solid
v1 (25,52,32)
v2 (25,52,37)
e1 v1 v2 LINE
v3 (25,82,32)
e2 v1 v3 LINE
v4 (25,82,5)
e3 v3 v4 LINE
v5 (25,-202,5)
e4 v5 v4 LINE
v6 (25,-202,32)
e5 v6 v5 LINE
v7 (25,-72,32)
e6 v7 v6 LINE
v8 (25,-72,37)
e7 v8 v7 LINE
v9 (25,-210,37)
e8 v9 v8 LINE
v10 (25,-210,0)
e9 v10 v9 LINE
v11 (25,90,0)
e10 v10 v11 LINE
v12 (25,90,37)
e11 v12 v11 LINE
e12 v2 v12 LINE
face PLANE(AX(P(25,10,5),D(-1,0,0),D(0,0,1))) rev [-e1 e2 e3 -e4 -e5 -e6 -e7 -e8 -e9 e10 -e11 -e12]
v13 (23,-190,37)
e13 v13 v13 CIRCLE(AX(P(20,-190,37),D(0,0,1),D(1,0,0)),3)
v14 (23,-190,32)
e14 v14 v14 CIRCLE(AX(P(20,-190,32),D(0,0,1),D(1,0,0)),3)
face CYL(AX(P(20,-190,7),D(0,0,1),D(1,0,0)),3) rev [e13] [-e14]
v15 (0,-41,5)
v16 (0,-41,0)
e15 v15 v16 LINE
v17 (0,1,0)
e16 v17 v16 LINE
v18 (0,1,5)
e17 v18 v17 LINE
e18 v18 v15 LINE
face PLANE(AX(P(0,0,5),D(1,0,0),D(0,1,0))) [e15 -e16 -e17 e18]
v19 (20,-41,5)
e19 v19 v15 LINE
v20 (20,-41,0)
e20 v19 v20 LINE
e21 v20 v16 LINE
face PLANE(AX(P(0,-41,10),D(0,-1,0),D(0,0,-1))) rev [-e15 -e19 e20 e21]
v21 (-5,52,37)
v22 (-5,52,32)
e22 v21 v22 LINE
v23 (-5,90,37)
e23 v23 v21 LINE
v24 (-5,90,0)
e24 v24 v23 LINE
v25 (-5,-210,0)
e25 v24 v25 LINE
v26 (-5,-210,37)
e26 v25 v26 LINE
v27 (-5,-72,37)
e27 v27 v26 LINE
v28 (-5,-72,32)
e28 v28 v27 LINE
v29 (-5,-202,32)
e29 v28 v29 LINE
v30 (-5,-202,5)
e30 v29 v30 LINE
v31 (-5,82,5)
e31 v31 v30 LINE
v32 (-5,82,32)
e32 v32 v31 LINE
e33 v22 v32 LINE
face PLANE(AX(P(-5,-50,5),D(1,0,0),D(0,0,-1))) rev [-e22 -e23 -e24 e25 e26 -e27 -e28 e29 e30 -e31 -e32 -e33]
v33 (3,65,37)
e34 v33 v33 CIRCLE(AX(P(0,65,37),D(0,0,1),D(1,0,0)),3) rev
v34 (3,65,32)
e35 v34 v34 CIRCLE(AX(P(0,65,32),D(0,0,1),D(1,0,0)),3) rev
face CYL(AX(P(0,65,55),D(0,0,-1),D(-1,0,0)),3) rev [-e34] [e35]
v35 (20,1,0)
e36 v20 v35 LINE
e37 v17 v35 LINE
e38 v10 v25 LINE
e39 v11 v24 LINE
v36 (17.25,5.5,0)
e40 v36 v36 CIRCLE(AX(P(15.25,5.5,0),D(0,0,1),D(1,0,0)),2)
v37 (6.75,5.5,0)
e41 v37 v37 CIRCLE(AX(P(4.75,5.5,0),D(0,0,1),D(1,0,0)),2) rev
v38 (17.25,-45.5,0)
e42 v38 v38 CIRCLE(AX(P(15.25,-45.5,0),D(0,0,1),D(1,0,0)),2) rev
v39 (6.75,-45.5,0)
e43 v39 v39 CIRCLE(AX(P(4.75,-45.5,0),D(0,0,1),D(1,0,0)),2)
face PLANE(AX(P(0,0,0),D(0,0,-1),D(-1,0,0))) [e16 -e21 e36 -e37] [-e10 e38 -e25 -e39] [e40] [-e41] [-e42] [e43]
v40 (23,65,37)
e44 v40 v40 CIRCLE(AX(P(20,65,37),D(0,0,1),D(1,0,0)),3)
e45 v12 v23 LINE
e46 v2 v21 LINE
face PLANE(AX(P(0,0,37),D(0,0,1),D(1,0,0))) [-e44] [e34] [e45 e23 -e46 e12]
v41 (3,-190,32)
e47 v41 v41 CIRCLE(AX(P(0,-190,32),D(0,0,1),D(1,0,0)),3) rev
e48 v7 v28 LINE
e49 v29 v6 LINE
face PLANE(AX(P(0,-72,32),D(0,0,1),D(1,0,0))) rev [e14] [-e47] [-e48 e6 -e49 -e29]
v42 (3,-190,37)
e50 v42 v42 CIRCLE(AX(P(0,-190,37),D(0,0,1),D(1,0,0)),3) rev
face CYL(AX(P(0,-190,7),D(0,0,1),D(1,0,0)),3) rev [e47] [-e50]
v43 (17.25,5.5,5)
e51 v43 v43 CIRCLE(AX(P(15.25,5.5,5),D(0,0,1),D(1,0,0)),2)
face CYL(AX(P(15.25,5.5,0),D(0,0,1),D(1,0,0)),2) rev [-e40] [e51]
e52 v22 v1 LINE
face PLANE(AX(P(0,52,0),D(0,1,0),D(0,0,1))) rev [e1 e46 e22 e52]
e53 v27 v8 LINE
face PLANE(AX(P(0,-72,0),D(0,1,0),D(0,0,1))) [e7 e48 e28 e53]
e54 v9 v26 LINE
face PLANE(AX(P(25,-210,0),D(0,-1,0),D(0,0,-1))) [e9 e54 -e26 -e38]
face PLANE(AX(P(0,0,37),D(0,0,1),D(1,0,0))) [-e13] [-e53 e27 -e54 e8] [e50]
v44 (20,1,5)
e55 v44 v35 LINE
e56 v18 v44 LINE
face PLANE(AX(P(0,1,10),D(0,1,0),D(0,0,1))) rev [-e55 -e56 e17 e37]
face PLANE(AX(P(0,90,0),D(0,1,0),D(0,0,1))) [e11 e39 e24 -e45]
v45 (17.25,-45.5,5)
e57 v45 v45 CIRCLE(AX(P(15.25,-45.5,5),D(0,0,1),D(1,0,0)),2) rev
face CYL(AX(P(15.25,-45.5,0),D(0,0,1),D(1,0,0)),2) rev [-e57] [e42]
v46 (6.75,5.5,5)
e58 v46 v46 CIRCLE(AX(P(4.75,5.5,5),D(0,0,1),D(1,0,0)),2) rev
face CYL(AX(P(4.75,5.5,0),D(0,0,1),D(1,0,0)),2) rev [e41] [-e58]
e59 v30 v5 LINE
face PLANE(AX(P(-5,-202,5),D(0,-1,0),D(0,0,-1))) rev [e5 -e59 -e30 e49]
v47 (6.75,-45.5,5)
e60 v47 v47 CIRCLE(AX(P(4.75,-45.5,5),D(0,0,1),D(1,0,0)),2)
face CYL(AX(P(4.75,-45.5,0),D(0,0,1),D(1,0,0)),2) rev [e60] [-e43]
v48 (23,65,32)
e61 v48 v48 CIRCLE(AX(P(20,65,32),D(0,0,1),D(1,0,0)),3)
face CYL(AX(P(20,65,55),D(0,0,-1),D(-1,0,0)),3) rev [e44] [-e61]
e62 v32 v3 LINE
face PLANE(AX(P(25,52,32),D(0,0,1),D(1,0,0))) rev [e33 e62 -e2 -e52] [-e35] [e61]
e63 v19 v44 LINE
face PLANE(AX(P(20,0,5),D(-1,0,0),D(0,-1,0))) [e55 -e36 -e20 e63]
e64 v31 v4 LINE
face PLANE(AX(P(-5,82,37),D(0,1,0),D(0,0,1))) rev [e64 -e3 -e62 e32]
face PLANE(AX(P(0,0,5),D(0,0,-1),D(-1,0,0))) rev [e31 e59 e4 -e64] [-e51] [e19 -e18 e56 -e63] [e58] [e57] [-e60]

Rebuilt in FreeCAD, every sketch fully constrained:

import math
import FreeCAD as App
import Part
import Sketcher


def add_polygon(sketch, points):
    """Adds a closed chain of lines whose ends are joined by coincident constraints."""
    first, n = sketch.GeometryCount, len(points)
    for a, b in zip(points, points[1:] + points[:1]):
        sketch.addGeometry(Part.LineSegment(App.Vector(*a, 0), App.Vector(*b, 0)), False)
    for i in range(n):
        sketch.addConstraint(Sketcher.Constraint("Coincident", first + i, 2, first + (i + 1) % n, 1))

doc = App.newDocument("Part")
body = doc.addObject("PartDesign::Body", "Body")

sketch1 = body.newObject("Sketcher::SketchObject", "Sketch")
sketch1.AttachmentSupport = (doc.getObject("XY_Plane"), [""])
sketch1.MapMode = "FlatFace"
add_polygon(sketch1, [(-5, 10), (-5, -50), (25, -50), (25, 10)])
add_polygon(sketch1, [(20, -40), (0, -40), (0, 0), (20, 0)])
sketch1.addConstraint([
    Sketcher.Constraint("Vertical", 0),
    Sketcher.Constraint("Horizontal", 1),
    Sketcher.Constraint("Vertical", 2),
    Sketcher.Constraint("Horizontal", 3),
    Sketcher.Constraint("Horizontal", 4),
    Sketcher.Constraint("Vertical", 5),
    Sketcher.Constraint("Horizontal", 6),
    Sketcher.Constraint("Vertical", 7),
    Sketcher.Constraint("Coincident", 5, 2, -1, 1),
    Sketcher.Constraint("DistanceX", 1, 1, 1, 2, 30.0),
    Sketcher.Constraint("DistanceX", 4, 2, 4, 1, 20.0),
    Sketcher.Constraint("DistanceY", 0, 2, 0, 1, 60.0),
    Sketcher.Constraint("DistanceY", 5, 1, 5, 2, 40.0),
    Sketcher.Constraint("DistanceX", 0, 2, -1, 1, 5.0),
    Sketcher.Constraint("DistanceY", 0, 2, -1, 1, 50.0),
])
pad1 = body.newObject("PartDesign::Pad", "Pad")
pad1.Profile = sketch1
pad1.Length = 5

sketch2 = body.newObject("Sketcher::SketchObject", "Sketch001")
sketch2.AttachmentSupport = (doc.getObject("XY_Plane"), [""])
sketch2.MapMode = "FlatFace"
sketch2.AttachmentOffset = App.Placement(App.Vector(0, 0, 5), App.Rotation())
sketch2.addGeometry([
    Part.Circle(App.Vector(15.2, 5.5, 0), App.Vector(0, 0, 1), 2),
    Part.Circle(App.Vector(15.2, -45.5, 0), App.Vector(0, 0, 1), 2),
    Part.Circle(App.Vector(4.8, -45.5, 0), App.Vector(0, 0, 1), 2),
    Part.Circle(App.Vector(4.8, 5.5, 0), App.Vector(0, 0, 1), 2),
], False)
sketch2.addConstraint([
    Sketcher.Constraint("Equal", 0, 1),
    Sketcher.Constraint("Equal", 1, 2),
    Sketcher.Constraint("Equal", 2, 3),
    Sketcher.Constraint("Horizontal", 1, 3, 2, 3),
    Sketcher.Constraint("Horizontal", 0, 3, 3, 3),
    Sketcher.Constraint("Vertical", 0, 3, 1, 3),
    Sketcher.Constraint("Vertical", 2, 3, 3, 3),
    Sketcher.Constraint("Diameter", 0, 4.0),
    Sketcher.Constraint("DistanceY", 1, 3, 0, 3, 51.0),
    Sketcher.Constraint("DistanceY", -1, 1, 0, 3, 5.5),
    Sketcher.Constraint("DistanceX", 2, 3, 1, 3, 10.5),
    Sketcher.Constraint("DistanceX", -1, 1, 0, 3, 15.25),
])
pocket1 = body.newObject("PartDesign::Pocket", "Pocket")
pocket1.Profile = sketch2
pocket1.Length = 5

sketch3 = body.newObject("Sketcher::SketchObject", "Sketch002")
sketch3.AttachmentSupport = (doc.getObject("YZ_Plane"), [""])
sketch3.MapMode = "FlatFace"
sketch3.AttachmentOffset = App.Placement(App.Vector(0, 0, 25), App.Rotation())
sketch3.addGeometry([
    Part.LineSegment(App.Vector(-40, 5, 0), App.Vector(-42, 5, 0)),
    Part.ArcOfCircle(Part.Circle(App.Vector(-42, 8, 0), App.Vector(0, 0, 1), 3), math.radians(180), math.radians(270)),
    Part.LineSegment(App.Vector(-45, 8, 0), App.Vector(-45, 25, 0)),
    Part.LineSegment(App.Vector(-45, 25, 0), App.Vector(-50, 25, 0)),
    Part.LineSegment(App.Vector(-50, 25, 0), App.Vector(-50, -20, 0)),
    Part.LineSegment(App.Vector(-50, -20, 0), App.Vector(-45, -20, 0)),
    Part.LineSegment(App.Vector(-45, -20, 0), App.Vector(-45, -3, 0)),
    Part.ArcOfCircle(Part.Circle(App.Vector(-42, -3, 0), App.Vector(0, 0, 1), 3), math.radians(90), math.radians(180)),
    Part.LineSegment(App.Vector(-42, 0, 0), App.Vector(-40, 0, 0)),
    Part.LineSegment(App.Vector(-40, 0, 0), App.Vector(-40, 5, 0)),
], False)
sketch3.addConstraint([
    Sketcher.Constraint("Tangent", 0, 2, 1, 2),
    Sketcher.Constraint("Tangent", 1, 1, 2, 1),
    Sketcher.Constraint("Coincident", 2, 2, 3, 1),
    Sketcher.Constraint("Coincident", 3, 2, 4, 1),
    Sketcher.Constraint("Coincident", 4, 2, 5, 1),
    Sketcher.Constraint("Coincident", 5, 2, 6, 1),
    Sketcher.Constraint("Tangent", 6, 2, 7, 2),
    Sketcher.Constraint("Tangent", 7, 1, 8, 1),
    Sketcher.Constraint("Coincident", 8, 2, 9, 1),
    Sketcher.Constraint("Coincident", 9, 2, 0, 1),
    Sketcher.Constraint("Horizontal", 0),
    Sketcher.Constraint("Vertical", 2),
    Sketcher.Constraint("Horizontal", 3),
    Sketcher.Constraint("Vertical", 4),
    Sketcher.Constraint("Horizontal", 5),
    Sketcher.Constraint("Vertical", 6),
    Sketcher.Constraint("Horizontal", 8),
    Sketcher.Constraint("Vertical", 9),
    Sketcher.Constraint("Equal", 1, 7),
    Sketcher.Constraint("PointOnObject", 7, 1, -1),
    Sketcher.Constraint("Vertical", 1, 3, 7, 3),
    Sketcher.Constraint("Equal", 2, 6),
    Sketcher.Constraint("Equal", 5, 9),
    Sketcher.Constraint("Radius", 1, 3.0),
    Sketcher.Constraint("DistanceX", 0, 2, 0, 1, 2.0),
    Sketcher.Constraint("DistanceX", 3, 2, 3, 1, 5.0),
    Sketcher.Constraint("DistanceY", 2, 1, 2, 2, 17.0),
    Sketcher.Constraint("DistanceX", 1, 3, -1, 1, 42.0),
])
pad2 = body.newObject("PartDesign::Pad", "Pad001")
pad2.Profile = sketch3
pad2.Length = 5
doc.recompute()

datumplane = body.newObject("PartDesign::Plane", "DatumPlane")
datumplane.AttachmentSupport = (doc.getObject("YZ_Plane"), [""])
datumplane.MapMode = "FlatFace"
datumplane.AttachmentOffset = App.Placement(App.Vector(0, 0, 10), App.Rotation())
mirrored = body.newObject("PartDesign::Mirrored", "Mirrored")
mirrored.Originals = [pad2]
mirrored.MirrorPlane = (datumplane, [""])
body.Tip = mirrored

sketch4 = body.newObject("Sketcher::SketchObject", "Sketch003")
sketch4.AttachmentSupport = (doc.getObject("XZ_Plane"), [""])
sketch4.MapMode = "FlatFace"
sketch4.AttachmentOffset = App.Placement(App.Vector(0, 0, 45), App.Rotation())
sketch4.addGeometry([
    Part.Circle(App.Vector(-7.5, -12.5, 0), App.Vector(0, 0, 1), 1.5),
    Part.Circle(App.Vector(-7.5, 17.5, 0), App.Vector(0, 0, 1), 1.5),
    Part.Circle(App.Vector(27.5, 17.5, 0), App.Vector(0, 0, 1), 1.5),
    Part.Circle(App.Vector(27.5, -12.5, 0), App.Vector(0, 0, 1), 1.5),
], False)
sketch4.addConstraint([
    Sketcher.Constraint("Equal", 0, 1),
    Sketcher.Constraint("Equal", 1, 2),
    Sketcher.Constraint("Equal", 2, 3),
    Sketcher.Constraint("Horizontal", 1, 3, 2, 3),
    Sketcher.Constraint("Horizontal", 0, 3, 3, 3),
    Sketcher.Constraint("Vertical", 0, 3, 1, 3),
    Sketcher.Constraint("Vertical", 2, 3, 3, 3),
    Sketcher.Constraint("Diameter", 0, 3.0),
    Sketcher.Constraint("DistanceY", 0, 3, 1, 3, 30.0),
    Sketcher.Constraint("DistanceX", 1, 3, 2, 3, 35.0),
    Sketcher.Constraint("DistanceX", 0, 3, -1, 1, 7.5),
    Sketcher.Constraint("DistanceY", 0, 3, -1, 1, 12.5),
])
pocket2 = body.newObject("PartDesign::Pocket", "Pocket001")
pocket2.Profile = sketch4
pocket2.Length = 5
pocket2.Reversed = True

sketch5 = body.newObject("Sketcher::SketchObject", "Sketch004")
sketch5.AttachmentSupport = (doc.getObject("XY_Plane"), [""])
sketch5.MapMode = "FlatFace"
sketch5.AttachmentOffset = App.Placement(App.Vector(0, 0, 25), App.Rotation())
add_polygon(sketch5, [(25, -40), (25, -50), (30, -50), (30, -40)])
add_polygon(sketch5, [(-10, -40), (-10, -50), (-5, -50), (-5, -40)])
sketch5.addConstraint([
    Sketcher.Constraint("Vertical", 0),
    Sketcher.Constraint("Horizontal", 1),
    Sketcher.Constraint("Vertical", 2),
    Sketcher.Constraint("Horizontal", 3),
    Sketcher.Constraint("Vertical", 4),
    Sketcher.Constraint("Horizontal", 5),
    Sketcher.Constraint("Vertical", 6),
    Sketcher.Constraint("Horizontal", 7),
    Sketcher.Constraint("Horizontal", 1, 2, 4, 2),
    Sketcher.Constraint("Horizontal", 3, 2, 6, 2),
    Sketcher.Constraint("Equal", 3, 5),
    Sketcher.Constraint("DistanceX", 1, 1, 1, 2, 5.0),
    Sketcher.Constraint("DistanceY", 0, 2, 0, 1, 10.0),
    Sketcher.Constraint("DistanceX", -1, 1, 0, 2, 25.0),
    Sketcher.Constraint("DistanceY", 0, 2, -1, 1, 50.0),
    Sketcher.Constraint("DistanceX", 4, 2, -1, 1, 10.0),
])
pocket3 = body.newObject("PartDesign::Pocket", "Pocket002")
pocket3.Profile = sketch5
pocket3.Length = 100

sketch6 = body.newObject("Sketcher::SketchObject", "Sketch005")
sketch6.AttachmentSupport = (doc.getObject("XZ_Plane"), [""])
sketch6.MapMode = "FlatFace"
sketch6.AttachmentOffset = App.Placement(App.Vector(0, 0, -10), App.Rotation())
add_polygon(sketch6, [(-5, 0), (-5, 5), (25, 5), (25, 0)])
sketch6.addConstraint([
    Sketcher.Constraint("Vertical", 0),
    Sketcher.Constraint("Horizontal", 1),
    Sketcher.Constraint("Vertical", 2),
    Sketcher.Constraint("Horizontal", 3),
    Sketcher.Constraint("PointOnObject", 2, 2, -1),
    Sketcher.Constraint("DistanceX", 1, 1, 1, 2, 30.0),
    Sketcher.Constraint("DistanceY", 0, 1, 0, 2, 5.0),
    Sketcher.Constraint("DistanceX", 0, 2, -1, 1, 5.0),
])
pad3 = body.newObject("PartDesign::Pad", "Pad002")
pad3.Profile = sketch6
pad3.Length = 80
pad3.Reversed = True

sketch7 = body.newObject("Sketcher::SketchObject", "Sketch006")
sketch7.AttachmentSupport = (doc.getObject("XZ_Plane"), [""])
sketch7.MapMode = "FlatFace"
sketch7.AttachmentOffset = App.Placement(App.Vector(0, 0, 50), App.Rotation())
add_polygon(sketch7, [(-5, 5), (-5, 0), (25, 0), (25, 5)])
sketch7.addConstraint([
    Sketcher.Constraint("Vertical", 0),
    Sketcher.Constraint("Horizontal", 1),
    Sketcher.Constraint("Vertical", 2),
    Sketcher.Constraint("Horizontal", 3),
    Sketcher.Constraint("PointOnObject", 0, 2, -1),
    Sketcher.Constraint("DistanceX", 1, 1, 1, 2, 30.0),
    Sketcher.Constraint("DistanceY", 0, 2, 0, 1, 5.0),
    Sketcher.Constraint("DistanceX", 0, 2, -1, 1, 5.0),
])
pad4 = body.newObject("PartDesign::Pad", "Pad003")
pad4.Profile = sketch7
pad4.Length = 60

sketch8 = body.newObject("Sketcher::SketchObject", "Sketch007")
sketch8.AttachmentSupport = (doc.getObject("XY_Plane"), [""])
sketch8.MapMode = "FlatFace"
sketch8.AttachmentOffset = App.Placement(App.Vector(0, 0, 5), App.Rotation())
add_polygon(sketch8, [(-5, -102), (-5, -110), (25, -110), (25, -102)])
add_polygon(sketch8, [(-5, 90), (-5, 82), (25, 82), (25, 90)])
sketch8.addConstraint([
    Sketcher.Constraint("Vertical", 0),
    Sketcher.Constraint("Horizontal", 1),
    Sketcher.Constraint("Vertical", 2),
    Sketcher.Constraint("Horizontal", 3),
    Sketcher.Constraint("Vertical", 4),
    Sketcher.Constraint("Horizontal", 5),
    Sketcher.Constraint("Vertical", 6),
    Sketcher.Constraint("Horizontal", 7),
    Sketcher.Constraint("Vertical", 3, 2, 4, 2),
    Sketcher.Constraint("Vertical", 2, 2, 5, 2),
    Sketcher.Constraint("Equal", 2, 4),
    Sketcher.Constraint("DistanceX", 1, 1, 1, 2, 30.0),
    Sketcher.Constraint("DistanceY", 0, 2, 0, 1, 8.0),
    Sketcher.Constraint("DistanceX", 0, 2, -1, 1, 5.0),
    Sketcher.Constraint("DistanceY", 0, 2, -1, 1, 110.0),
    Sketcher.Constraint("DistanceY", -1, 1, 4, 2, 82.0),
])
pad5 = body.newObject("PartDesign::Pad", "Pad004")
pad5.Profile = sketch8
pad5.Length = 32

sketch9 = body.newObject("Sketcher::SketchObject", "Sketch008")
sketch9.AttachmentSupport = (doc.getObject("XZ_Plane"), [""])
sketch9.MapMode = "FlatFace"
sketch9.AttachmentOffset = App.Placement(App.Vector(0, 0, 102), App.Rotation())
add_polygon(sketch9, [(-5, 37), (25, 37), (25, 32), (-5, 32)])
sketch9.addConstraint([
    Sketcher.Constraint("Horizontal", 0),
    Sketcher.Constraint("Vertical", 1),
    Sketcher.Constraint("Horizontal", 2),
    Sketcher.Constraint("Vertical", 3),
    Sketcher.Constraint("DistanceX", 0, 1, 0, 2, 30.0),
    Sketcher.Constraint("DistanceY", 1, 2, 1, 1, 5.0),
    Sketcher.Constraint("DistanceX", -1, 1, 0, 2, 25.0),
    Sketcher.Constraint("DistanceY", -1, 1, 0, 2, 37.0),
])
pad6 = body.newObject("PartDesign::Pad", "Pad005")
pad6.Profile = sketch9
pad6.Length = 30
pad6.Reversed = True

sketch10 = body.newObject("Sketcher::SketchObject", "Sketch009")
sketch10.AttachmentSupport = (doc.getObject("XZ_Plane"), [""])
sketch10.MapMode = "FlatFace"
sketch10.AttachmentOffset = App.Placement(App.Vector(0, 0, -82), App.Rotation())
add_polygon(sketch10, [(-5, 37), (-5, 32), (25, 32), (25, 37)])
sketch10.addConstraint([
    Sketcher.Constraint("Vertical", 0),
    Sketcher.Constraint("Horizontal", 1),
    Sketcher.Constraint("Vertical", 2),
    Sketcher.Constraint("Horizontal", 3),
    Sketcher.Constraint("DistanceX", 1, 1, 1, 2, 30.0),
    Sketcher.Constraint("DistanceY", 0, 2, 0, 1, 5.0),
    Sketcher.Constraint("DistanceX", 0, 2, -1, 1, 5.0),
    Sketcher.Constraint("DistanceY", -1, 1, 0, 2, 32.0),
])
pad7 = body.newObject("PartDesign::Pad", "Pad006")
pad7.Profile = sketch10
pad7.Length = 30

sketch11 = body.newObject("Sketcher::SketchObject", "Sketch010")
sketch11.AttachmentSupport = (doc.getObject("YZ_Plane"), [""])
sketch11.MapMode = "FlatFace"
sketch11.AttachmentOffset = App.Placement(App.Vector(0, 0, -5), App.Rotation())
add_polygon(sketch11, [(-110, 0), (-210, 0), (-210, 37), (-110, 37)])
sketch11.addConstraint([
    Sketcher.Constraint("Horizontal", 0),
    Sketcher.Constraint("Vertical", 1),
    Sketcher.Constraint("Horizontal", 2),
    Sketcher.Constraint("Vertical", 3),
    Sketcher.Constraint("PointOnObject", 0, 2, -1),
    Sketcher.Constraint("DistanceX", 0, 2, 0, 1, 100.0),
    Sketcher.Constraint("DistanceY", 1, 1, 1, 2, 37.0),
    Sketcher.Constraint("DistanceX", 0, 2, -1, 1, 210.0),
])
pad8 = body.newObject("PartDesign::Pad", "Pad007")
pad8.Profile = sketch11
pad8.Length = 30

sketch12 = body.newObject("Sketcher::SketchObject", "Sketch011")
sketch12.AttachmentSupport = (doc.getObject("XY_Plane"), [""])
sketch12.MapMode = "FlatFace"
sketch12.AttachmentOffset = App.Placement(App.Vector(0, 0, 5), App.Rotation())
sketch12.addGeometry([
    Part.Circle(App.Vector(0, 65, 0), App.Vector(0, 0, 1), 3),
    Part.Circle(App.Vector(20, 65, 0), App.Vector(0, 0, 1), 3),
], False)
sketch12.addConstraint([
    Sketcher.Constraint("Equal", 0, 1),
    Sketcher.Constraint("PointOnObject", 0, 3, -2),
    Sketcher.Constraint("Horizontal", 0, 3, 1, 3),
    Sketcher.Constraint("Diameter", 0, 6.0),
    Sketcher.Constraint("DistanceY", -1, 1, 0, 3, 65.0),
    Sketcher.Constraint("DistanceX", -1, 1, 1, 3, 20.0),
])
pocket4 = body.newObject("PartDesign::Pocket", "Pocket003")
pocket4.Profile = sketch12
pocket4.Length = 50
pocket4.Reversed = True

sketch13 = body.newObject("Sketcher::SketchObject", "Sketch012")
sketch13.AttachmentSupport = (doc.getObject("YZ_Plane"), [""])
sketch13.MapMode = "FlatFace"
sketch13.AttachmentOffset = App.Placement(App.Vector(0, 0, 25), App.Rotation())
add_polygon(sketch13, [(-102, 32), (-202, 32), (-202, 5), (-102, 5)])
sketch13.addConstraint([
    Sketcher.Constraint("Horizontal", 0),
    Sketcher.Constraint("Vertical", 1),
    Sketcher.Constraint("Horizontal", 2),
    Sketcher.Constraint("Vertical", 3),
    Sketcher.Constraint("DistanceX", 0, 2, 0, 1, 100.0),
    Sketcher.Constraint("DistanceY", 1, 2, 1, 1, 27.0),
    Sketcher.Constraint("DistanceX", 0, 2, -1, 1, 202.0),
    Sketcher.Constraint("DistanceY", -1, 1, 0, 2, 32.0),
])
pocket5 = body.newObject("PartDesign::Pocket", "Pocket004")
pocket5.Profile = sketch13
pocket5.Length = 30

sketch14 = body.newObject("Sketcher::SketchObject", "Sketch013")
sketch14.AttachmentSupport = (doc.getObject("XY_Plane"), [""])
sketch14.MapMode = "FlatFace"
sketch14.AttachmentOffset = App.Placement(App.Vector(0, 0, 37), App.Rotation())
sketch14.addGeometry([
    Part.Circle(App.Vector(20, -190, 0), App.Vector(0, 0, 1), 3),
    Part.Circle(App.Vector(0, -190, 0), App.Vector(0, 0, 1), 3),
], False)
sketch14.addConstraint([
    Sketcher.Constraint("Equal", 0, 1),
    Sketcher.Constraint("PointOnObject", 1, 3, -2),
    Sketcher.Constraint("Horizontal", 0, 3, 1, 3),
    Sketcher.Constraint("Diameter", 0, 6.0),
    Sketcher.Constraint("DistanceX", -1, 1, 0, 3, 20.0),
    Sketcher.Constraint("DistanceY", 0, 3, -1, 1, 190.0),
])
pocket6 = body.newObject("PartDesign::Pocket", "Pocket005")
pocket6.Profile = sketch14
pocket6.Length = 30

sketch15 = body.newObject("Sketcher::SketchObject", "Sketch014")
sketch15.AttachmentSupport = (doc.getObject("XY_Plane"), [""])
sketch15.MapMode = "FlatFace"
add_polygon(sketch15, [(20, -40), (20, -41), (0, -41), (0, -40)])
add_polygon(sketch15, [(20, 1), (20, 0), (0, 0), (0, 1)])
sketch15.addConstraint([
    Sketcher.Constraint("Vertical", 0),
    Sketcher.Constraint("Horizontal", 1),
    Sketcher.Constraint("Vertical", 2),
    Sketcher.Constraint("Horizontal", 3),
    Sketcher.Constraint("Vertical", 4),
    Sketcher.Constraint("Horizontal", 5),
    Sketcher.Constraint("Vertical", 6),
    Sketcher.Constraint("Horizontal", 7),
    Sketcher.Constraint("Coincident", 5, 2, -1, 1),
    Sketcher.Constraint("PointOnObject", 1, 2, -2),
    Sketcher.Constraint("Vertical", 3, 2, 4, 2),
    Sketcher.Constraint("Equal", 2, 4),
    Sketcher.Constraint("DistanceX", 1, 2, 1, 1, 20.0),
    Sketcher.Constraint("DistanceY", 0, 2, 0, 1, 1.0),
    Sketcher.Constraint("DistanceY", 0, 2, -1, 1, 41.0),
])
pocket7 = body.newObject("PartDesign::Pocket", "Pocket006")
pocket7.Profile = sketch15
pocket7.Length = 10
pocket7.Reversed = True

doc.recompute()
